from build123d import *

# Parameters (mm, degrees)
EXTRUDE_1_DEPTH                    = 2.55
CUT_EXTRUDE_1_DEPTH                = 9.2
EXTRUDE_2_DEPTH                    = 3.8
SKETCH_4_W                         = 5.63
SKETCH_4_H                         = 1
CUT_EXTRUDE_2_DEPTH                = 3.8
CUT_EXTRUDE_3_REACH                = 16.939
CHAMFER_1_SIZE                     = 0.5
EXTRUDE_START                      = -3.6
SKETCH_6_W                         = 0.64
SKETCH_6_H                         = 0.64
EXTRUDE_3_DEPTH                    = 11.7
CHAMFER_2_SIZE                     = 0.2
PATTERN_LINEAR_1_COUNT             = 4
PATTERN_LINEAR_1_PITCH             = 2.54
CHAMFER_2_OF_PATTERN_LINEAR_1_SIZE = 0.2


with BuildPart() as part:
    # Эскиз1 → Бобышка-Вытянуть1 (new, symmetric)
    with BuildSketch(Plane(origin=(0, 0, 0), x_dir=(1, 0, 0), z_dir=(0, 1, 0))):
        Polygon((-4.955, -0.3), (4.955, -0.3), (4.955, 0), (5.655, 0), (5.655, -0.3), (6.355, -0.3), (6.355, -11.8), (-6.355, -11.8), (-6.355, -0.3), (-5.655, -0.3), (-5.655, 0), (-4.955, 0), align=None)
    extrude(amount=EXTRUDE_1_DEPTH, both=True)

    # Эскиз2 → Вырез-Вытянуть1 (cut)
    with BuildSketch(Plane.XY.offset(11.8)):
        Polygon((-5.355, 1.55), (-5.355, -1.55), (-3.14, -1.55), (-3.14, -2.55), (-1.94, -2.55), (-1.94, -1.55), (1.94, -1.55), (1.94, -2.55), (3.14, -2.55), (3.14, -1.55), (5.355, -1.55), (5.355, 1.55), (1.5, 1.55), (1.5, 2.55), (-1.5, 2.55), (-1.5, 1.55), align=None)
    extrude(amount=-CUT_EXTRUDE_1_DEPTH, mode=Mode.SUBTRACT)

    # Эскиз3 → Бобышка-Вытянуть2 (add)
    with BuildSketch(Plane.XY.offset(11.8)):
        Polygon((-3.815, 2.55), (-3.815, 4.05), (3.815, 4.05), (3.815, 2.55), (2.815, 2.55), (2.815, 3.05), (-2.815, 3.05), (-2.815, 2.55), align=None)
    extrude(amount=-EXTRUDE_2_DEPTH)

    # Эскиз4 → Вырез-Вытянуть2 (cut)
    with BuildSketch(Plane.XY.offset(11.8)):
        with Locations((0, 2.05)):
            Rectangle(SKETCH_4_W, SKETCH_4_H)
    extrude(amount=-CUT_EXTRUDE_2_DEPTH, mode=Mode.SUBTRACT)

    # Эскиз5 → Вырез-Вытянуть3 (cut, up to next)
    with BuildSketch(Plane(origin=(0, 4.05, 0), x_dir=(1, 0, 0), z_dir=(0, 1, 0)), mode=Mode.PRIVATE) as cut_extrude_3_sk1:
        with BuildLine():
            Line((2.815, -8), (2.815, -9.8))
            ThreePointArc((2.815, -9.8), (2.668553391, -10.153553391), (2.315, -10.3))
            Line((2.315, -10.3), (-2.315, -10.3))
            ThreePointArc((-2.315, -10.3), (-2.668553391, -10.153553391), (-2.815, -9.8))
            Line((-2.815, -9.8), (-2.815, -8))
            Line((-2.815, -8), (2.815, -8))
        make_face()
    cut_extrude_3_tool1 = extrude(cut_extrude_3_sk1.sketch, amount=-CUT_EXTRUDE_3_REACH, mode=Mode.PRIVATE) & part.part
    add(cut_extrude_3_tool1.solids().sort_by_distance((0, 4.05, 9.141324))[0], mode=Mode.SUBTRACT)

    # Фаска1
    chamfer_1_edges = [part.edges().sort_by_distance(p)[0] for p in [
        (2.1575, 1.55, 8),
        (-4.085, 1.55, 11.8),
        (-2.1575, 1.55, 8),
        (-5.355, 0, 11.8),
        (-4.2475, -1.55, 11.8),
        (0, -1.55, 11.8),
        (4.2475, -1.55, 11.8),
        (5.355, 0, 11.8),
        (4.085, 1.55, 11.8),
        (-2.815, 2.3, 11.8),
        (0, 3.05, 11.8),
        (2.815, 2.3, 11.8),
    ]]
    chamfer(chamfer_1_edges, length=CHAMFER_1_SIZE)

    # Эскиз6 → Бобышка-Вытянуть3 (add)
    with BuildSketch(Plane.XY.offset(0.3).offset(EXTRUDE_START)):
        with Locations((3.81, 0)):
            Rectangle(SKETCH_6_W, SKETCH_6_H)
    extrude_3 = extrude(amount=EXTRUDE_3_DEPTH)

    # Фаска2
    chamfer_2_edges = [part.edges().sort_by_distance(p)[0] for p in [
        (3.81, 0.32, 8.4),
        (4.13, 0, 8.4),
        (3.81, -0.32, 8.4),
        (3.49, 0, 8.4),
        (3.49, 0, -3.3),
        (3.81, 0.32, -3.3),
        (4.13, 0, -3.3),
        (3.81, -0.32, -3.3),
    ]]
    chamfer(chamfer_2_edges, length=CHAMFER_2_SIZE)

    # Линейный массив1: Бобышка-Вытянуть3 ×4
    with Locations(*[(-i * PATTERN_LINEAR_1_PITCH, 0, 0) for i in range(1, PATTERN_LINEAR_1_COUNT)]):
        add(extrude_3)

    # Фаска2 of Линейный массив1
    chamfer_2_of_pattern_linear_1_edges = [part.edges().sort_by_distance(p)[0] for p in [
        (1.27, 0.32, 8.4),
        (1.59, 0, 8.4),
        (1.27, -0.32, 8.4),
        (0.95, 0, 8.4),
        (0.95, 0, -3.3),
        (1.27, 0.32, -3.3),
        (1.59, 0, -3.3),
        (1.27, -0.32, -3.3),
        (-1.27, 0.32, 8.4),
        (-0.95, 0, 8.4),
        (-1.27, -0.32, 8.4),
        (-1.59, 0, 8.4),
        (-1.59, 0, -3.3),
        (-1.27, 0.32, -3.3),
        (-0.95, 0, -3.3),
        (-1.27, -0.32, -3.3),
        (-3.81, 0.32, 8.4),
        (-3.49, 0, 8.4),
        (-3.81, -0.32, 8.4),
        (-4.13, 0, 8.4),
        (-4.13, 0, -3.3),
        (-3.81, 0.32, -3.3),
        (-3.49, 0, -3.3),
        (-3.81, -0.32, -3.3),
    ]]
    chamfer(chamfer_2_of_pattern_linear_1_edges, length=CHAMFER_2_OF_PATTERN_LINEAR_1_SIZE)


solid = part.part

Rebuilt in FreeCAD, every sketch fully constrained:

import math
import FreeCAD as App
import Part
import Sketcher


def edges_at(feature, points):
    """Names of the edges that pass closest to the given points."""
    edges = feature.Shape.Edges
    near = lambda p: min(range(len(edges)), key=lambda i: edges[i].distToShape(Part.Vertex(*p))[0])
    return sorted({f"Edge{near(p) + 1}" for p in points})

doc = App.newDocument("Part")
body = doc.addObject("PartDesign::Body", "Body")

sketch1 = doc.addObject("Sketcher::SketchObject", "Sketch")
body.addObject(sketch1)
sketch1.AttachmentSupport = (doc.XZ_Plane, [""])
sketch1.MapMode = "FlatFace"
sketch1.addGeometry([
    Part.LineSegment(App.Vector(4.955, 0.3, 0), App.Vector(-4.955, 0.3, 0)),
    Part.LineSegment(App.Vector(-4.955, 0.3, 0), App.Vector(-4.955, 0, 0)),
    Part.LineSegment(App.Vector(-4.955, 0, 0), App.Vector(-5.655, 0, 0)),
    Part.LineSegment(App.Vector(-5.655, 0, 0), App.Vector(-5.655, 0.3, 0)),
    Part.LineSegment(App.Vector(-5.655, 0.3, 0), App.Vector(-6.355, 0.3, 0)),
    Part.LineSegment(App.Vector(-6.355, 0.3, 0), App.Vector(-6.355, 11.8, 0)),
    Part.LineSegment(App.Vector(-6.355, 11.8, 0), App.Vector(6.355, 11.8, 0)),
    Part.LineSegment(App.Vector(6.355, 11.8, 0), App.Vector(6.355, 0.3, 0)),
    Part.LineSegment(App.Vector(6.355, 0.3, 0), App.Vector(5.655, 0.3, 0)),
    Part.LineSegment(App.Vector(5.655, 0.3, 0), App.Vector(5.655, 0, 0)),
    Part.LineSegment(App.Vector(5.655, 0, 0), App.Vector(4.955, 0, 0)),
    Part.LineSegment(App.Vector(4.955, 0, 0), App.Vector(4.955, 0.3, 0)),
], False)
sketch1.addConstraint([
    Sketcher.Constraint("Coincident", 0, 2, 1, 1),
    Sketcher.Constraint("Coincident", 1, 2, 2, 1),
    Sketcher.Constraint("Coincident", 2, 2, 3, 1),
    Sketcher.Constraint("Coincident", 3, 2, 4, 1),
    Sketcher.Constraint("Coincident", 4, 2, 5, 1),
    Sketcher.Constraint("Coincident", 5, 2, 6, 1),
    Sketcher.Constraint("Coincident", 6, 2, 7, 1),
    Sketcher.Constraint("Coincident", 7, 2, 8, 1),
    Sketcher.Constraint("Coincident", 8, 2, 9, 1),
    Sketcher.Constraint("Coincident", 9, 2, 10, 1),
    Sketcher.Constraint("Coincident", 10, 2, 11, 1),
    Sketcher.Constraint("Coincident", 11, 2, 0, 1),
    Sketcher.Constraint("Horizontal", 0),
    Sketcher.Constraint("Vertical", 1),
    Sketcher.Constraint("Horizontal", 2),
    Sketcher.Constraint("Vertical", 3),
    Sketcher.Constraint("Horizontal", 4),
    Sketcher.Constraint("Vertical", 5),
    Sketcher.Constraint("Horizontal", 6),
    Sketcher.Constraint("Vertical", 7),
    Sketcher.Constraint("Horizontal", 8),
    Sketcher.Constraint("Vertical", 9),
    Sketcher.Constraint("Horizontal", 10),
    Sketcher.Constraint("Vertical", 11),
    Sketcher.Constraint("Symmetric", 2, 2, 9, 2, -1, 1),
    Sketcher.Constraint("Symmetric", 4, 2, 7, 2, -2),
    Sketcher.Constraint("Symmetric", 1, 2, 10, 2, -2),
    Sketcher.Constraint("Horizontal", 0, 2, 3, 2),
    Sketcher.Constraint("Equal", 2, 4),
    Sketcher.Constraint("DistanceX", 2, 2, 2, 1, 0.7),
    Sketcher.Constraint("DistanceY", 1, 2, 1, 1, 0.3),
    Sketcher.Constraint("DistanceY", 5, 1, 5, 2, 11.5),
    Sketcher.Constraint("DistanceX", 0, 2, 0, 1, 9.91),
])
pad1 = doc.addObject("PartDesign::Pad", "Pad")
body.addObject(pad1)
pad1.Profile = sketch1
pad1.Length = 5.1
pad1.Midplane = True

sketch2 = doc.addObject("Sketcher::SketchObject", "Sketch001")
body.addObject(sketch2)
sketch2.AttachmentSupport = (doc.XY_Plane, [""])
sketch2.MapMode = "FlatFace"
sketch2.AttachmentOffset = App.Placement(App.Vector(0, 0, 11.8), App.Rotation())
sketch2.addGeometry([
    Part.LineSegment(App.Vector(-5.355, 1.55, 0), App.Vector(-5.355, -1.55, 0)),
    Part.LineSegment(App.Vector(-5.355, -1.55, 0), App.Vector(-3.14, -1.55, 0)),
    Part.LineSegment(App.Vector(-3.14, -1.55, 0), App.Vector(-3.14, -2.55, 0)),
    Part.LineSegment(App.Vector(-3.14, -2.55, 0), App.Vector(-1.94, -2.55, 0)),
    Part.LineSegment(App.Vector(-1.94, -2.55, 0), App.Vector(-1.94, -1.55, 0)),
    Part.LineSegment(App.Vector(-1.94, -1.55, 0), App.Vector(1.94, -1.55, 0)),
    Part.LineSegment(App.Vector(1.94, -1.55, 0), App.Vector(1.94, -2.55, 0)),
    Part.LineSegment(App.Vector(1.94, -2.55, 0), App.Vector(3.14, -2.55, 0)),
    Part.LineSegment(App.Vector(3.14, -2.55, 0), App.Vector(3.14, -1.55, 0)),
    Part.LineSegment(App.Vector(3.14, -1.55, 0), App.Vector(5.355, -1.55, 0)),
    Part.LineSegment(App.Vector(5.355, -1.55, 0), App.Vector(5.355, 1.55, 0)),
    Part.LineSegment(App.Vector(5.355, 1.55, 0), App.Vector(1.5, 1.55, 0)),
    Part.LineSegment(App.Vector(1.5, 1.55, 0), App.Vector(1.5, 2.55, 0)),
    Part.LineSegment(App.Vector(1.5, 2.55, 0), App.Vector(-1.5, 2.55, 0)),
    Part.LineSegment(App.Vector(-1.5, 2.55, 0), App.Vector(-1.5, 1.55, 0)),
    Part.LineSegment(App.Vector(-1.5, 1.55, 0), App.Vector(-5.355, 1.55, 0)),
], False)
sketch2.addConstraint([
    Sketcher.Constraint("Coincident", 0, 2, 1, 1),
    Sketcher.Constraint("Coincident", 1, 2, 2, 1),
    Sketcher.Constraint("Coincident", 2, 2, 3, 1),
    Sketcher.Constraint("Coincident", 3, 2, 4, 1),
    Sketcher.Constraint("Coincident", 4, 2, 5, 1),
    Sketcher.Constraint("Coincident", 5, 2, 6, 1),
    Sketcher.Constraint("Coincident", 6, 2, 7, 1),
    Sketcher.Constraint("Coincident", 7, 2, 8, 1),
    Sketcher.Constraint("Coincident", 8, 2, 9, 1),
    Sketcher.Constraint("Coincident", 9, 2, 10, 1),
    Sketcher.Constraint("Coincident", 10, 2, 11, 1),
    Sketcher.Constraint("Coincident", 11, 2, 12, 1),
    Sketcher.Constraint("Coincident", 12, 2, 13, 1),
    Sketcher.Constraint("Coincident", 13, 2, 14, 1),
    Sketcher.Constraint("Coincident", 14, 2, 15, 1),
    Sketcher.Constraint("Coincident", 15, 2, 0, 1),
    Sketcher.Constraint("Vertical", 0),
    Sketcher.Constraint("Horizontal", 1),
    Sketcher.Constraint("Vertical", 2),
    Sketcher.Constraint("Horizontal", 3),
    Sketcher.Constraint("Vertical", 4),
    Sketcher.Constraint("Horizontal", 5),
    Sketcher.Constraint("Vertical", 6),
    Sketcher.Constraint("Horizontal", 7),
    Sketcher.Constraint("Vertical", 8),
    Sketcher.Constraint("Horizontal", 9),
    Sketcher.Constraint("Vertical", 10),
    Sketcher.Constraint("Horizontal", 11),
    Sketcher.Constraint("Vertical", 12),
    Sketcher.Constraint("Horizontal", 13),
    Sketcher.Constraint("Vertical", 14),
    Sketcher.Constraint("Horizontal", 15),
    Sketcher.Constraint("Symmetric", 0, 2, 10, 2, -1, 1),
    Sketcher.Constraint("Symmetric", 3, 2, 6, 2, -2),
    Sketcher.Constraint("Symmetric", 1, 2, 8, 2, -2),
    Sketcher.Constraint("Symmetric", 11, 2, 14, 2, -2),
    Sketcher.Constraint("Horizontal", 1, 2, 4, 2),
    Sketcher.Constraint("Equal", 8, 12),
    Sketcher.Constraint("DistanceX", 13, 2, 13, 1, 3.0),
    Sketcher.Constraint("DistanceY", 2, 2, 2, 1, 1.0),
    Sketcher.Constraint("DistanceX", 3, 1, 3, 2, 1.2),
    Sketcher.Constraint("DistanceY", 0, 2, 0, 1, 3.1),
    Sketcher.Constraint("DistanceX", 5, 1, 5, 2, 3.88),
    Sketcher.Constraint("DistanceX", 1, 1, 1, 2, 2.215),
])
pocket1 = doc.addObject("PartDesign::Pocket", "Pocket")
body.addObject(pocket1)
pocket1.Profile = sketch2
pocket1.Length = 9.2

sketch3 = doc.addObject("Sketcher::SketchObject", "Sketch002")
body.addObject(sketch3)
sketch3.AttachmentSupport = (doc.XY_Plane, [""])
sketch3.MapMode = "FlatFace"
sketch3.AttachmentOffset = App.Placement(App.Vector(0, 0, 11.8), App.Rotation())
sketch3.addGeometry([
    Part.LineSegment(App.Vector(-3.815, 4.05, 0), App.Vector(-3.815, 2.55, 0)),
    Part.LineSegment(App.Vector(-3.815, 2.55, 0), App.Vector(-2.815, 2.55, 0)),
    Part.LineSegment(App.Vector(-2.815, 2.55, 0), App.Vector(-2.815, 3.05, 0)),
    Part.LineSegment(App.Vector(-2.815, 3.05, 0), App.Vector(2.815, 3.05, 0)),
    Part.LineSegment(App.Vector(2.815, 3.05, 0), App.Vector(2.815, 2.55, 0)),
    Part.LineSegment(App.Vector(2.815, 2.55, 0), App.Vector(3.815, 2.55, 0)),
    Part.LineSegment(App.Vector(3.815, 2.55, 0), App.Vector(3.815, 4.05, 0)),
    Part.LineSegment(App.Vector(3.815, 4.05, 0), App.Vector(-3.815, 4.05, 0)),
], False)
sketch3.addConstraint([
    Sketcher.Constraint("Coincident", 0, 2, 1, 1),
    Sketcher.Constraint("Coincident", 1, 2, 2, 1),
    Sketcher.Constraint("Coincident", 2, 2, 3, 1),
    Sketcher.Constraint("Coincident", 3, 2, 4, 1),
    Sketcher.Constraint("Coincident", 4, 2, 5, 1),
    Sketcher.Constraint("Coincident", 5, 2, 6, 1),
    Sketcher.Constraint("Coincident", 6, 2, 7, 1),
    Sketcher.Constraint("Coincident", 7, 2, 0, 1),
    Sketcher.Constraint("Vertical", 0),
    Sketcher.Constraint("Horizontal", 1),
    Sketcher.Constraint("Vertical", 2),
    Sketcher.Constraint("Horizontal", 3),
    Sketcher.Constraint("Vertical", 4),
    Sketcher.Constraint("Horizontal", 5),
    Sketcher.Constraint("Vertical", 6),
    Sketcher.Constraint("Horizontal", 7),
    Sketcher.Constraint("Symmetric", 1, 2, 4, 2, -2),
    Sketcher.Constraint("Equal", 1, 5),
    Sketcher.Constraint("DistanceX", 1, 1, 1, 2, 1.0),
    Sketcher.Constraint("DistanceY", 0, 2, 0, 1, 1.5),
    Sketcher.Constraint("DistanceY", 2, 1, 2, 2, 0.5),
    Sketcher.Constraint("DistanceX", 3, 1, 3, 2, 5.63),
    Sketcher.Constraint("DistanceY", -1, 1, 0, 2, 2.55),
])
pad2 = doc.addObject("PartDesign::Pad", "Pad001")
body.addObject(pad2)
pad2.Profile = sketch3
pad2.Length = 3.8
pad2.Reversed = True

sketch4 = doc.addObject("Sketcher::SketchObject", "Sketch003")
body.addObject(sketch4)
sketch4.AttachmentSupport = (doc.XY_Plane, [""])
sketch4.MapMode = "FlatFace"
sketch4.AttachmentOffset = App.Placement(App.Vector(0, 0, 11.8), App.Rotation())
sketch4.addGeometry([
    Part.LineSegment(App.Vector(-2.815, 2.55, 0), App.Vector(-2.815, 1.55, 0)),
    Part.LineSegment(App.Vector(-2.815, 1.55, 0), App.Vector(2.815, 1.55, 0)),
    Part.LineSegment(App.Vector(2.815, 1.55, 0), App.Vector(2.815, 2.55, 0)),
    Part.LineSegment(App.Vector(2.815, 2.55, 0), App.Vector(-2.815, 2.55, 0)),
], False)
sketch4.addConstraint([
    Sketcher.Constraint("Coincident", 0, 2, 1, 1),
    Sketcher.Constraint("Coincident", 1, 2, 2, 1),
    Sketcher.Constraint("Coincident", 2, 2, 3, 1),
    Sketcher.Constraint("Coincident", 3, 2, 0, 1),
    Sketcher.Constraint("Vertical", 0),
    Sketcher.Constraint("Horizontal", 1),
    Sketcher.Constraint("Vertical", 2),
    Sketcher.Constraint("Horizontal", 3),
    Sketcher.Constraint("DistanceY", 0, 2, 0, 1, 1.0),
    Sketcher.Constraint("DistanceX", 1, 1, 1, 2, 5.63),
    Sketcher.Constraint("DistanceY", -1, 1, 0, 2, 1.55),
    Sketcher.Constraint("DistanceX", 0, 2, -1, 1, 2.815),
])
pocket2 = doc.addObject("PartDesign::Pocket", "Pocket001")
body.addObject(pocket2)
pocket2.Profile = sketch4
pocket2.Length = 3.8

sketch5 = doc.addObject("Sketcher::SketchObject", "Sketch004")
body.addObject(sketch5)
sketch5.AttachmentSupport = (doc.XZ_Plane, [""])
sketch5.MapMode = "FlatFace"
sketch5.AttachmentOffset = App.Placement(App.Vector(0, 0, -4.05), App.Rotation())
sketch5.addGeometry([
    Part.LineSegment(App.Vector(2.815, 9.8, 0), App.Vector(2.815, 8, 0)),
    Part.LineSegment(App.Vector(2.815, 8, 0), App.Vector(-2.815, 8, 0)),
    Part.LineSegment(App.Vector(-2.815, 8, 0), App.Vector(-2.815, 9.8, 0)),
    Part.ArcOfCircle(Part.Circle(App.Vector(-2.315, 9.8, 0), App.Vector(0, 0, 1), 0.5), math.radians(90), math.radians(180)),
    Part.LineSegment(App.Vector(-2.315, 10.3, 0), App.Vector(2.315, 10.3, 0)),
    Part.ArcOfCircle(Part.Circle(App.Vector(2.315, 9.8, 0), App.Vector(0, 0, 1), 0.5), math.radians(0), math.radians(90)),
], False)
sketch5.addConstraint([
    Sketcher.Constraint("Coincident", 0, 2, 1, 1),
    Sketcher.Constraint("Coincident", 1, 2, 2, 1),
    Sketcher.Constraint("Tangent", 2, 2, 3, 2),
    Sketcher.Constraint("Tangent", 3, 1, 4, 1),
    Sketcher.Constraint("Tangent", 4, 2, 5, 2),
    Sketcher.Constraint("Tangent", 5, 1, 0, 1),
    Sketcher.Constraint("Vertical", 0),
    Sketcher.Constraint("Horizontal", 1),
    Sketcher.Constraint("Vertical", 2),
    Sketcher.Constraint("Horizontal", 4),
    Sketcher.Constraint("Equal", 3, 5),
    Sketcher.Constraint("Radius", 3, 0.5),
    Sketcher.Constraint("DistanceY", 0, 2, 0, 1, 1.8),
    Sketcher.Constraint("DistanceY", -1, 1, 0, 2, 8.0),
    Sketcher.Constraint("DistanceX", 1, 2, 1, 1, 5.63),
    Sketcher.Constraint("DistanceX", 3, 3, -1, 1, 2.315),
])
pocket3 = doc.addObject("PartDesign::Pocket", "Pocket002")
body.addObject(pocket3)
pocket3.Profile = sketch5
pocket3.Type = "UpToFirst"
pocket3.Reversed = True
doc.recompute()

chamfer = doc.addObject("PartDesign::Chamfer", "Chamfer")
body.addObject(chamfer)
chamfer.Base = (pocket3, edges_at(pocket3, [
    (2.158, 1.55, 8),
    (-4.085, 1.55, 11.8),
    (-2.158, 1.55, 8),
    (-5.355, 0, 11.8),
    (-4.247, -1.55, 11.8),
    (0, -1.55, 11.8),
    (4.247, -1.55, 11.8),
    (5.355, 0, 11.8),
    (4.085, 1.55, 11.8),
    (-2.815, 2.3, 11.8),
    (0, 3.05, 11.8),
    (2.815, 2.3, 11.8),
]))
chamfer.Size = 0.5

sketch6 = doc.addObject("Sketcher::SketchObject", "Sketch005")
body.addObject(sketch6)
sketch6.AttachmentSupport = (doc.XY_Plane, [""])
sketch6.MapMode = "FlatFace"
sketch6.AttachmentOffset = App.Placement(App.Vector(0, 0, -3.3), App.Rotation())
sketch6.addGeometry([
    Part.LineSegment(App.Vector(3.49, 0.32, 0), App.Vector(3.49, -0.32, 0)),
    Part.LineSegment(App.Vector(3.49, -0.32, 0), App.Vector(4.13, -0.32, 0)),
    Part.LineSegment(App.Vector(4.13, -0.32, 0), App.Vector(4.13, 0.32, 0)),
    Part.LineSegment(App.Vector(4.13, 0.32, 0), App.Vector(3.49, 0.32, 0)),
], False)
sketch6.addConstraint([
    Sketcher.Constraint("Coincident", 0, 2, 1, 1),
    Sketcher.Constraint("Coincident", 1, 2, 2, 1),
    Sketcher.Constraint("Coincident", 2, 2, 3, 1),
    Sketcher.Constraint("Coincident", 3, 2, 0, 1),
    Sketcher.Constraint("Vertical", 0),
    Sketcher.Constraint("Horizontal", 1),
    Sketcher.Constraint("Vertical", 2),
    Sketcher.Constraint("Horizontal", 3),
    Sketcher.Constraint("Equal", 3, 0),
    Sketcher.Constraint("DistanceX", 1, 1, 1, 2, 0.64),
    Sketcher.Constraint("DistanceX", -1, 1, 0, 2, 3.49),
    Sketcher.Constraint("DistanceY", 0, 2, -1, 1, 0.32),
])
pad3 = doc.addObject("PartDesign::Pad", "Pad002")
body.addObject(pad3)
pad3.Profile = sketch6
pad3.Length = 11.7
doc.recompute()

chamfer2 = doc.addObject("PartDesign::Chamfer", "Chamfer001")
body.addObject(chamfer2)
chamfer2.Base = (pad3, edges_at(pad3, [
    (3.81, 0.32, 8.4),
    (4.13, 0, 8.4),
    (3.81, -0.32, 8.4),
    (3.49, 0, 8.4),
    (3.49, 0, -3.3),
    (3.81, 0.32, -3.3),
    (4.13, 0, -3.3),
    (3.81, -0.32, -3.3),
]))
chamfer2.Size = 0.2
doc.recompute()

linearpattern = doc.addObject("PartDesign::LinearPattern", "LinearPattern")
body.addObject(linearpattern)
linearpattern.Originals = [pad3]
linearpattern.Direction = (doc.X_Axis, [""])
linearpattern.Mode = "offset"
linearpattern.Offset = 2.54
linearpattern.Occurrences = 4
linearpattern.Reversed = True
body.Tip = linearpattern
doc.recompute()

chamfer3 = doc.addObject("PartDesign::Chamfer", "Chamfer002")
body.addObject(chamfer3)
chamfer3.Base = (linearpattern, edges_at(linearpattern, [
    (1.27, 0.32, 8.4),
    (1.59, 0, 8.4),
    (1.27, -0.32, 8.4),
    (0.95, 0, 8.4),
    (0.95, 0, -3.3),
    (1.27, 0.32, -3.3),
    (1.59, 0, -3.3),
    (1.27, -0.32, -3.3),
    (-1.27, 0.32, 8.4),
    (-0.95, 0, 8.4),
    (-1.27, -0.32, 8.4),
    (-1.59, 0, 8.4),
    (-1.59, 0, -3.3),
    (-1.27, 0.32, -3.3),
    (-0.95, 0, -3.3),
    (-1.27, -0.32, -3.3),
    (-3.81, 0.32, 8.4),
    (-3.49, 0, 8.4),
    (-3.81, -0.32, 8.4),
    (-4.13, 0, 8.4),
    (-4.13, 0, -3.3),
    (-3.81, 0.32, -3.3),
    (-3.49, 0, -3.3),
    (-3.81, -0.32, -3.3),
]))
chamfer3.Size = 0.2

doc.recompute()
